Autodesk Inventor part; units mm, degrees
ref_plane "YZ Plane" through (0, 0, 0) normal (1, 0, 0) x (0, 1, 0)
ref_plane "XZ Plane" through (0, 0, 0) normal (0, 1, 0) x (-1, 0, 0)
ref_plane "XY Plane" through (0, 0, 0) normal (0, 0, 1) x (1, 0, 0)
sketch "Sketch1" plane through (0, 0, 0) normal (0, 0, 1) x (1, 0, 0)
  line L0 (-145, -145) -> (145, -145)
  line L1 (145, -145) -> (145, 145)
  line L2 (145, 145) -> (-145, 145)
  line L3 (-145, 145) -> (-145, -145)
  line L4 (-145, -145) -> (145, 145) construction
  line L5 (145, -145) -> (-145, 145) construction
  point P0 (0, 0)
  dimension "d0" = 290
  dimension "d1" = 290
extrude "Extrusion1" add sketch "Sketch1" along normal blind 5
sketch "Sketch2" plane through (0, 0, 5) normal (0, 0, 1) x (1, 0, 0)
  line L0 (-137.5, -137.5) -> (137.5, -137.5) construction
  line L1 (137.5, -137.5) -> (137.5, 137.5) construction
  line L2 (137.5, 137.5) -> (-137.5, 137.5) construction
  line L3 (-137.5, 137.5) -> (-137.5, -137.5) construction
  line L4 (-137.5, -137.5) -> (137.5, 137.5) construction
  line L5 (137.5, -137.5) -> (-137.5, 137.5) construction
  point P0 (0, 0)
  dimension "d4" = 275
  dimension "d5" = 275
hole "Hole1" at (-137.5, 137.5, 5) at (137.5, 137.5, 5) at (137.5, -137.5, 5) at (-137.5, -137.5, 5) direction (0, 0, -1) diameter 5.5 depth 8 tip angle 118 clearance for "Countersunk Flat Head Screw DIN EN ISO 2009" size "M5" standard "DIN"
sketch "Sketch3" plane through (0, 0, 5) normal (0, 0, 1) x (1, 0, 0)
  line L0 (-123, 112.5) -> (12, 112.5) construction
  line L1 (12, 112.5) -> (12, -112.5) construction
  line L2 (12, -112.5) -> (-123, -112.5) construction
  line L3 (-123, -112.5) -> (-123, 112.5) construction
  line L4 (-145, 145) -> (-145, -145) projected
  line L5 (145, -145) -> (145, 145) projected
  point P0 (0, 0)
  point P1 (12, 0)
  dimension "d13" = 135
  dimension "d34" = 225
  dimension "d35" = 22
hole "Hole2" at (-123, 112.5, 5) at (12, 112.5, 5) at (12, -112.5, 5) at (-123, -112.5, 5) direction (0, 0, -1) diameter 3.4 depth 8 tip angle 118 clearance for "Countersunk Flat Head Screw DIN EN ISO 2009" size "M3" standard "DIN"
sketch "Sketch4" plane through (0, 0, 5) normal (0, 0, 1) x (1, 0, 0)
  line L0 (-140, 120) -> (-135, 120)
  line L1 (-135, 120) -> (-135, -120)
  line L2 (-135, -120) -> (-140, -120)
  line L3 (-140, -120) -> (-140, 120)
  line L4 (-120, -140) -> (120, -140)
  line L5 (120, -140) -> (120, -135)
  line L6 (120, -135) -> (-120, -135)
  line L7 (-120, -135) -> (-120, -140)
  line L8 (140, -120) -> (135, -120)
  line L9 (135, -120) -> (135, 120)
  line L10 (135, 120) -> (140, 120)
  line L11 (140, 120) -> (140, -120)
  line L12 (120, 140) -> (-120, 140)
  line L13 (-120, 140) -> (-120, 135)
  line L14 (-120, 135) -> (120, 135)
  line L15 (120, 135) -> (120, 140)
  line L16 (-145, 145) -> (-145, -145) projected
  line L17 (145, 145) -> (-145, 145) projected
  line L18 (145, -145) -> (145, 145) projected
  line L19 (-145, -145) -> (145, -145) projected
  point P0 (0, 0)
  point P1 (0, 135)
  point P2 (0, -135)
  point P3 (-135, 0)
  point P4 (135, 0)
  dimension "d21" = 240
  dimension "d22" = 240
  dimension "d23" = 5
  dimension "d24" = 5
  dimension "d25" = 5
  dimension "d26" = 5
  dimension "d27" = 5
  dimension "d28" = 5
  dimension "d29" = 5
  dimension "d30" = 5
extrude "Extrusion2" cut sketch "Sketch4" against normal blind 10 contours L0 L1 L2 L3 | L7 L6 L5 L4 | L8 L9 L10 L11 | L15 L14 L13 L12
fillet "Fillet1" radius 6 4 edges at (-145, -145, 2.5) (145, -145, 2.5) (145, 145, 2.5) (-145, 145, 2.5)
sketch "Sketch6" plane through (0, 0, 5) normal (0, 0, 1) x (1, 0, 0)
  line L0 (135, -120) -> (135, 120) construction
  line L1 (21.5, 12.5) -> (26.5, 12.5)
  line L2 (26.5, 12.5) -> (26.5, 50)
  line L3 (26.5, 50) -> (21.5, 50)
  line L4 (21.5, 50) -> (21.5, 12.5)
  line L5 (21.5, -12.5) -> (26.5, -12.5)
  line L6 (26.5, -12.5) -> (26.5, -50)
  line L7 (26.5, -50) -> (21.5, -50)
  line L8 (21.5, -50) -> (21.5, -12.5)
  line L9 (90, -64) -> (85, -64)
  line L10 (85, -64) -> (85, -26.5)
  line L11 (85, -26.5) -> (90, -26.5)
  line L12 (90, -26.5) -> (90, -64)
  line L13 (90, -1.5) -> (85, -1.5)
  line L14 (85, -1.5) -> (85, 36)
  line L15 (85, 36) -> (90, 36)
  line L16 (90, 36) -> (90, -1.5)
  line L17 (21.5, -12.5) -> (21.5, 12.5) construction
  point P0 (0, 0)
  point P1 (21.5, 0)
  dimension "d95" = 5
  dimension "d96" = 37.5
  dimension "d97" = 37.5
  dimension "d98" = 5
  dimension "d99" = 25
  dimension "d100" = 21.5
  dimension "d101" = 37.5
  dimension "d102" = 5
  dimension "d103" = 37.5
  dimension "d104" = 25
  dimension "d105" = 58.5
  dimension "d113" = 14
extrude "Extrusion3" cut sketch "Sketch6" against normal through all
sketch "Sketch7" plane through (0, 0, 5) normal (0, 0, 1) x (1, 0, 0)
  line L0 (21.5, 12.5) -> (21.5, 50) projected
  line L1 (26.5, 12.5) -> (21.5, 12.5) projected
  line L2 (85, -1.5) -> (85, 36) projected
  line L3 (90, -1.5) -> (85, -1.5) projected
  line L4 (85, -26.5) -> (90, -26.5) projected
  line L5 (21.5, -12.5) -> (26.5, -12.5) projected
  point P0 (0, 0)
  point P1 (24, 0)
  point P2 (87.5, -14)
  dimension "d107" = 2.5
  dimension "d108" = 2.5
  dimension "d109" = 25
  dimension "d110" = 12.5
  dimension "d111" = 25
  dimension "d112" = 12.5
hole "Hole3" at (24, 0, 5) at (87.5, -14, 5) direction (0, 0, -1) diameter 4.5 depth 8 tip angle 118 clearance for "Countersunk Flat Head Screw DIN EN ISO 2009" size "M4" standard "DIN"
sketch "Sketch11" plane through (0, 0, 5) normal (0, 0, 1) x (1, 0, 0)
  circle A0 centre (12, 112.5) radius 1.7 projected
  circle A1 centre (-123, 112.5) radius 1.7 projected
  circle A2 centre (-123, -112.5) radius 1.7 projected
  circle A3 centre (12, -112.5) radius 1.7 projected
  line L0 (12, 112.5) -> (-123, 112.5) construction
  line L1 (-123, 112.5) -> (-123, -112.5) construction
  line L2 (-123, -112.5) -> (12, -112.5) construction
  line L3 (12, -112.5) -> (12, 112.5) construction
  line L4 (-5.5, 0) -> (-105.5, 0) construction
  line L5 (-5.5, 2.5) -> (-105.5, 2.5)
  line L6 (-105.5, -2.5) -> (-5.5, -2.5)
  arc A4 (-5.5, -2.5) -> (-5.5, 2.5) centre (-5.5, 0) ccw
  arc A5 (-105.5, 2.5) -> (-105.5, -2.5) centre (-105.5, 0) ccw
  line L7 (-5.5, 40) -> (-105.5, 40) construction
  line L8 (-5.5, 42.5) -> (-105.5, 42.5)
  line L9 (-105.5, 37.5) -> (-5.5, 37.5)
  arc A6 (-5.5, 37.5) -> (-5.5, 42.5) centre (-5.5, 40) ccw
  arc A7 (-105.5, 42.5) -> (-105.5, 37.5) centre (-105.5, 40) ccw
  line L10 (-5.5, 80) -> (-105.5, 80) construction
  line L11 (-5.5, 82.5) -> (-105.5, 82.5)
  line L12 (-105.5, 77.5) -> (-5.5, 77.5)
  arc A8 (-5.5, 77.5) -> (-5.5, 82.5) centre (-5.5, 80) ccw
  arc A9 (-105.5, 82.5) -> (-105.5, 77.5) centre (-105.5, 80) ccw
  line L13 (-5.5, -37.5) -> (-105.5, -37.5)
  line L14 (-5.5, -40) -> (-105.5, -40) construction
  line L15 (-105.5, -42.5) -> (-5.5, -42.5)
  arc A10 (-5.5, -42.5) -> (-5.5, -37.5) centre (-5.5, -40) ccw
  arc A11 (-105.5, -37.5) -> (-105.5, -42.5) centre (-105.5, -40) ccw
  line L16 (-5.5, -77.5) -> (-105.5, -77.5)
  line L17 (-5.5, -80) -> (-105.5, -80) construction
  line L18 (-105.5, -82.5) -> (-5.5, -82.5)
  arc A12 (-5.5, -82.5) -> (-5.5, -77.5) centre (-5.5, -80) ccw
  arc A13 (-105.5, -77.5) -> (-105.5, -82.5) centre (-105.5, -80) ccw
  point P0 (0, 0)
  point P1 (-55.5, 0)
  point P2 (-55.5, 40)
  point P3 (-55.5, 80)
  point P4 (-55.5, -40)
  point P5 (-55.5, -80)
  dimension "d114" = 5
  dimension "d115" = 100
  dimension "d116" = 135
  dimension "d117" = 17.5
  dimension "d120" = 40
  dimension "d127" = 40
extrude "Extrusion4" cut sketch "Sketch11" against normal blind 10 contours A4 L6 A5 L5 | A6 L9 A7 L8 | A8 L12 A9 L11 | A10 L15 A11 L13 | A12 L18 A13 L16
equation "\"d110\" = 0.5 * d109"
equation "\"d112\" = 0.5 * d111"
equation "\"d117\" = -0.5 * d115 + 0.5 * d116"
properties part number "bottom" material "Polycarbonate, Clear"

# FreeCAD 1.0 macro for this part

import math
import FreeCAD as App
import Part
import Sketcher
from FreeCAD import Vector
Q = App.Units.Quantity


def edges_at(feature, points):
    """Names of the edges that pass closest to the given points."""
    edges = feature.Shape.Edges
    near = lambda p: min(range(len(edges)), key=lambda i: edges[i].distToShape(Part.Vertex(*p))[0])
    return sorted({f"Edge{near(p) + 1}" for p in points})

doc = App.newDocument("Part")
body = doc.addObject("PartDesign::Body", "Body")

sketch1 = body.newObject("Sketcher::SketchObject", "Sketch")
sketch1.AttachmentSupport = (doc.getObject("XY_Plane"), [""])
sketch1.MapMode = "FlatFace"
sketch1.addGeometry([
    Part.LineSegment(Vector(-145, 145, 0), Vector(-145, -145, 0)),
    Part.LineSegment(Vector(-145, -145, 0), Vector(145, -145, 0)),
    Part.LineSegment(Vector(145, -145, 0), Vector(145, 145, 0)),
    Part.LineSegment(Vector(145, 145, 0), Vector(-145, 145, 0)),
], False)
sketch1.addConstraint([
    Sketcher.Constraint("Coincident", 0, 2, 1, 1),
    Sketcher.Constraint("Coincident", 1, 2, 2, 1),
    Sketcher.Constraint("Coincident", 2, 2, 3, 1),
    Sketcher.Constraint("Coincident", 3, 2, 0, 1),
    Sketcher.Constraint("Vertical", 0),
    Sketcher.Constraint("Horizontal", 1),
    Sketcher.Constraint("Vertical", 2),
    Sketcher.Constraint("Horizontal", 3),
    Sketcher.Constraint("Symmetric", 0, 2, 2, 2, -1, 1),
    Sketcher.Constraint("Equal", 3, 0),
    Sketcher.Constraint("DistanceX", 1, 1, 1, 2, Q("290 mm")),
])
pad1 = body.newObject("PartDesign::Pad", "Pad")
pad1.Profile = sketch1
pad1.Length = 5

sketch2 = body.newObject("Sketcher::SketchObject", "Sketch001")
sketch2.AttachmentSupport = (doc.getObject("XY_Plane"), [""])
sketch2.MapMode = "FlatFace"
sketch2.AttachmentOffset = App.Placement(Vector(0, 0, 5), App.Rotation())
sketch2.addGeometry([
    Part.Circle(Vector(-137.5, 137.5, 0), Vector(0, 0, 1), 2.75),
    Part.Circle(Vector(137.5, 137.5, 0), Vector(0, 0, 1), 2.75),
    Part.Circle(Vector(137.5, -137.5, 0), Vector(0, 0, 1), 2.75),
    Part.Circle(Vector(-137.5, -137.5, 0), Vector(0, 0, 1), 2.75),
], False)
sketch2.addConstraint([
    Sketcher.Constraint("Equal", 0, 1),
    Sketcher.Constraint("Equal", 1, 2),
    Sketcher.Constraint("Equal", 2, 3),
    Sketcher.Constraint("Symmetric", 0, 3, 2, 3, -1, 1),
    Sketcher.Constraint("Symmetric", 1, 3, 3, 3, -1, 1),
    Sketcher.Constraint("Symmetric", 0, 3, 1, 3, -2),
    Sketcher.Constraint("Diameter", 0, Q("5.5 mm")),
    Sketcher.Constraint("DistanceX", 0, 3, 1, 3, Q("275 mm")),
    Sketcher.Constraint("DistanceY", 2, 3, 1, 3, Q("275 mm")),
])
doc.recompute()
hole = body.newObject("PartDesign::Hole", "Hole")
hole.Profile = sketch2
hole.ThreadType = "None"
hole.Diameter = 5.5
hole.DepthType = "Dimension"
hole.Depth = 8
hole.DrillPoint = "Angled"
hole.DrillPointAngle = 118

sketch3 = body.newObject("Sketcher::SketchObject", "Sketch002")
sketch3.AttachmentSupport = (doc.getObject("XY_Plane"), [""])
sketch3.MapMode = "FlatFace"
sketch3.AttachmentOffset = App.Placement(Vector(0, 0, 5), App.Rotation())
sketch3.addGeometry([
    Part.Circle(Vector(-123, 112.5, 0), Vector(0, 0, 1), 1.7),
    Part.Circle(Vector(12, 112.5, 0), Vector(0, 0, 1), 1.7),
    Part.Circle(Vector(12, -112.5, 0), Vector(0, 0, 1), 1.7),
    Part.Circle(Vector(-123, -112.5, 0), Vector(0, 0, 1), 1.7),
], False)
sketch3.addConstraint([
    Sketcher.Constraint("Equal", 0, 1),
    Sketcher.Constraint("Equal", 1, 2),
    Sketcher.Constraint("Equal", 2, 3),
    Sketcher.Constraint("Symmetric", 1, 3, 2, 3, -1),
    Sketcher.Constraint("Symmetric", 0, 3, 3, 3, -1),
    Sketcher.Constraint("Horizontal", 0, 3, 1, 3),
    Sketcher.Constraint("Diameter", 0, Q("3.4 mm")),
    Sketcher.Constraint("DistanceX", 0, 3, -1, 1, Q("123 mm")),
    Sketcher.Constraint("DistanceX", -1, 1, 1, 3, Q("12 mm")),
    Sketcher.Constraint("DistanceY", 2, 3, 1, 3, Q("225 mm")),
])
doc.recompute()
hole2 = body.newObject("PartDesign::Hole", "Hole001")
hole2.Profile = sketch3
hole2.ThreadType = "None"
hole2.Diameter = 3.4
hole2.DepthType = "Dimension"
hole2.Depth = 8
hole2.DrillPoint = "Angled"
hole2.DrillPointAngle = 118

sketch4 = body.newObject("Sketcher::SketchObject", "Sketch003")
sketch4.AttachmentSupport = (doc.getObject("XY_Plane"), [""])
sketch4.MapMode = "FlatFace"
sketch4.AttachmentOffset = App.Placement(Vector(0, 0, 5), App.Rotation())
sketch4.addGeometry([
    Part.LineSegment(Vector(-135, 120, 0), Vector(-140, 120, 0)),
    Part.LineSegment(Vector(-140, 120, 0), Vector(-140, -120, 0)),
    Part.LineSegment(Vector(-140, -120, 0), Vector(-135, -120, 0)),
    Part.LineSegment(Vector(-135, -120, 0), Vector(-135, 120, 0)),
    Part.LineSegment(Vector(-120, -135, 0), Vector(-120, -140, 0)),
    Part.LineSegment(Vector(-120, -140, 0), Vector(120, -140, 0)),
    Part.LineSegment(Vector(120, -140, 0), Vector(120, -135, 0)),
    Part.LineSegment(Vector(120, -135, 0), Vector(-120, -135, 0)),
    Part.LineSegment(Vector(135, -120, 0), Vector(140, -120, 0)),
    Part.LineSegment(Vector(140, -120, 0), Vector(140, 120, 0)),
    Part.LineSegment(Vector(140, 120, 0), Vector(135, 120, 0)),
    Part.LineSegment(Vector(135, 120, 0), Vector(135, -120, 0)),
    Part.LineSegment(Vector(120, 135, 0), Vector(120, 140, 0)),
    Part.LineSegment(Vector(120, 140, 0), Vector(-120, 140, 0)),
    Part.LineSegment(Vector(-120, 140, 0), Vector(-120, 135, 0)),
    Part.LineSegment(Vector(-120, 135, 0), Vector(120, 135, 0)),
], False)
sketch4.addConstraint([
    Sketcher.Constraint("Coincident", 0, 2, 1, 1),
    Sketcher.Constraint("Coincident", 1, 2, 2, 1),
    Sketcher.Constraint("Coincident", 2, 2, 3, 1),
    Sketcher.Constraint("Coincident", 3, 2, 0, 1),
    Sketcher.Constraint("Coincident", 4, 2, 5, 1),
    Sketcher.Constraint("Coincident", 5, 2, 6, 1),
    Sketcher.Constraint("Coincident", 6, 2, 7, 1),
    Sketcher.Constraint("Coincident", 7, 2, 4, 1),
    Sketcher.Constraint("Coincident", 8, 2, 9, 1),
    Sketcher.Constraint("Coincident", 9, 2, 10, 1),
    Sketcher.Constraint("Coincident", 10, 2, 11, 1),
    Sketcher.Constraint("Coincident", 11, 2, 8, 1),
    Sketcher.Constraint("Coincident", 12, 2, 13, 1),
    Sketcher.Constraint("Coincident", 13, 2, 14, 1),
    Sketcher.Constraint("Coincident", 14, 2, 15, 1),
    Sketcher.Constraint("Coincident", 15, 2, 12, 1),
    Sketcher.Constraint("Horizontal", 0),
    Sketcher.Constraint("Vertical", 1),
    Sketcher.Constraint("Horizontal", 2),
    Sketcher.Constraint("Vertical", 3),
    Sketcher.Constraint("Vertical", 4),
    Sketcher.Constraint("Horizontal", 5),
    Sketcher.Constraint("Vertical", 6),
    Sketcher.Constraint("Horizontal", 7),
    Sketcher.Constraint("Horizontal", 8),
    Sketcher.Constraint("Vertical", 9),
    Sketcher.Constraint("Horizontal", 10),
    Sketcher.Constraint("Vertical", 11),
    Sketcher.Constraint("Vertical", 12),
    Sketcher.Constraint("Horizontal", 13),
    Sketcher.Constraint("Vertical", 14),
    Sketcher.Constraint("Horizontal", 15),
    Sketcher.Constraint("Symmetric", 0, 2, 8, 2, -1, 1),
    Sketcher.Constraint("Symmetric", 2, 2, 10, 2, -1, 1),
    Sketcher.Constraint("Symmetric", 4, 2, 12, 2, -1, 1),
    Sketcher.Constraint("Symmetric", 6, 2, 14, 2, -1, 1),
    Sketcher.Constraint("Horizontal", 2, 2, 8, 2),
    Sketcher.Constraint("Vertical", 6, 2, 12, 2),
    Sketcher.Constraint("Equal", 15, 1),
    Sketcher.Constraint("Equal", 10, 4),
    Sketcher.Constraint("DistanceX", 0, 2, 0, 1, Q("5 mm")),
    Sketcher.Constraint("DistanceX", 5, 1, 5, 2, Q("240 mm")),
    Sketcher.Constraint("DistanceX", 0, 2, -1, 1, Q("140 mm")),
    Sketcher.Constraint("DistanceY", 4, 2, -1, 1, Q("140 mm")),
])
pocket1 = body.newObject("PartDesign::Pocket", "Pocket")
pocket1.Profile = sketch4
pocket1.Length = 10
doc.recompute()

fillet = body.newObject("PartDesign::Fillet", "Fillet")
fillet.Base = (pocket1, edges_at(pocket1, [
    (-145, -145, 2.5),
    (145, -145, 2.5),
    (145, 145, 2.5),
    (-145, 145, 2.5),
]))
fillet.Radius = 6

sketch5 = body.newObject("Sketcher::SketchObject", "Sketch004")
sketch5.AttachmentSupport = (doc.getObject("XY_Plane"), [""])
sketch5.MapMode = "FlatFace"
sketch5.AttachmentOffset = App.Placement(Vector(0, 0, 5), App.Rotation())
sketch5.addGeometry([
    Part.LineSegment(Vector(21.5, 50, 0), Vector(21.5, 12.5, 0)),
    Part.LineSegment(Vector(21.5, 12.5, 0), Vector(26.5, 12.5, 0)),
    Part.LineSegment(Vector(26.5, 12.5, 0), Vector(26.5, 50, 0)),
    Part.LineSegment(Vector(26.5, 50, 0), Vector(21.5, 50, 0)),
    Part.LineSegment(Vector(26.5, -12.5, 0), Vector(21.5, -12.5, 0)),
    Part.LineSegment(Vector(21.5, -12.5, 0), Vector(21.5, -50, 0)),
    Part.LineSegment(Vector(21.5, -50, 0), Vector(26.5, -50, 0)),
    Part.LineSegment(Vector(26.5, -50, 0), Vector(26.5, -12.5, 0)),
    Part.LineSegment(Vector(85, -64, 0), Vector(90, -64, 0)),
    Part.LineSegment(Vector(90, -64, 0), Vector(90, -26.5, 0)),
    Part.LineSegment(Vector(90, -26.5, 0), Vector(85, -26.5, 0)),
    Part.LineSegment(Vector(85, -26.5, 0), Vector(85, -64, 0)),
    Part.LineSegment(Vector(85, -1.5, 0), Vector(90, -1.5, 0)),
    Part.LineSegment(Vector(90, -1.5, 0), Vector(90, 36, 0)),
    Part.LineSegment(Vector(90, 36, 0), Vector(85, 36, 0)),
    Part.LineSegment(Vector(85, 36, 0), Vector(85, -1.5, 0)),
], False)
sketch5.addConstraint([
    Sketcher.Constraint("Coincident", 0, 2, 1, 1),
    Sketcher.Constraint("Coincident", 1, 2, 2, 1),
    Sketcher.Constraint("Coincident", 2, 2, 3, 1),
    Sketcher.Constraint("Coincident", 3, 2, 0, 1),
    Sketcher.Constraint("Coincident", 4, 2, 5, 1),
    Sketcher.Constraint("Coincident", 5, 2, 6, 1),
    Sketcher.Constraint("Coincident", 6, 2, 7, 1),
    Sketcher.Constraint("Coincident", 7, 2, 4, 1),
    Sketcher.Constraint("Coincident", 8, 2, 9, 1),
    Sketcher.Constraint("Coincident", 9, 2, 10, 1),
    Sketcher.Constraint("Coincident", 10, 2, 11, 1),
    Sketcher.Constraint("Coincident", 11, 2, 8, 1),
    Sketcher.Constraint("Coincident", 12, 2, 13, 1),
    Sketcher.Constraint("Coincident", 13, 2, 14, 1),
    Sketcher.Constraint("Coincident", 14, 2, 15, 1),
    Sketcher.Constraint("Coincident", 15, 2, 12, 1),
    Sketcher.Constraint("Vertical", 0),
    Sketcher.Constraint("Horizontal", 1),
    Sketcher.Constraint("Vertical", 2),
    Sketcher.Constraint("Horizontal", 3),
    Sketcher.Constraint("Horizontal", 4),
    Sketcher.Constraint("Vertical", 5),
    Sketcher.Constraint("Horizontal", 6),
    Sketcher.Constraint("Vertical", 7),
    Sketcher.Constraint("Horizontal", 8),
    Sketcher.Constraint("Vertical", 9),
    Sketcher.Constraint("Horizontal", 10),
    Sketcher.Constraint("Vertical", 11),
    Sketcher.Constraint("Horizontal", 12),
    Sketcher.Constraint("Vertical", 13),
    Sketcher.Constraint("Horizontal", 14),
    Sketcher.Constraint("Vertical", 15),
    Sketcher.Constraint("Symmetric", 0, 2, 4, 2, -1),
    Sketcher.Constraint("Symmetric", 2, 2, 6, 2, -1),
    Sketcher.Constraint("Vertical", 9, 2, 12, 2),
    Sketcher.Constraint("Vertical", 11, 2, 14, 2),
    Sketcher.Constraint("Equal", 6, 8),
    Sketcher.Constraint("Equal", 7, 9),
    Sketcher.Constraint("Equal", 11, 13),
    Sketcher.Constraint("DistanceX", 1, 1, 1, 2, Q("5 mm")),
    Sketcher.Constraint("DistanceY", 0, 2, 0, 1, Q("37.5 mm")),
    Sketcher.Constraint("DistanceY", 4, 2, 0, 2, Q("25 mm")),
    Sketcher.Constraint("DistanceY", 8, 2, 6, 2, Q("14 mm")),
    Sketcher.Constraint("DistanceY", 9, 2, 12, 2, Q("25 mm")),
    Sketcher.Constraint("DistanceX", -1, 1, 0, 2, Q("21.5 mm")),
    Sketcher.Constraint("DistanceX", 7, 2, 10, 2, Q("58.5 mm")),
])
pocket2 = body.newObject("PartDesign::Pocket", "Pocket001")
pocket2.Profile = sketch5
pocket2.Type = "ThroughAll"

sketch6 = body.newObject("Sketcher::SketchObject", "Sketch005")
sketch6.AttachmentSupport = (doc.getObject("XY_Plane"), [""])
sketch6.MapMode = "FlatFace"
sketch6.AttachmentOffset = App.Placement(Vector(0, 0, 5), App.Rotation())
sketch6.addGeometry([
    Part.Circle(Vector(24, 0, 0), Vector(0, 0, 1), 2.25),
    Part.Circle(Vector(87.5, -14, 0), Vector(0, 0, 1), 2.25),
], False)
sketch6.addConstraint([
    Sketcher.Constraint("Equal", 0, 1),
    Sketcher.Constraint("PointOnObject", 0, 3, -1),
    Sketcher.Constraint("Diameter", 0, Q("4.5 mm")),
    Sketcher.Constraint("DistanceX", -1, 1, 0, 3, Q("24 mm")),
    Sketcher.Constraint("DistanceY", 1, 3, -1, 1, Q("14 mm")),
    Sketcher.Constraint("DistanceX", -1, 1, 1, 3, Q("87.5 mm")),
])
doc.recompute()
hole3 = body.newObject("PartDesign::Hole", "Hole002")
hole3.Profile = sketch6
hole3.ThreadType = "None"
hole3.Diameter = 4.5
hole3.DepthType = "Dimension"
hole3.Depth = 8
hole3.DrillPoint = "Angled"
hole3.DrillPointAngle = 118

sketch7 = body.newObject("Sketcher::SketchObject", "Sketch006")
sketch7.AttachmentSupport = (doc.getObject("XY_Plane"), [""])
sketch7.MapMode = "FlatFace"
sketch7.AttachmentOffset = App.Placement(Vector(0, 0, 5), App.Rotation())
sketch7.addGeometry([
    Part.ArcOfCircle(Part.Circle(Vector(-5.5, 0, 0), Vector(0, 0, 1), 2.5), math.radians(-90), math.radians(90)),
    Part.LineSegment(Vector(-5.5, 2.5, 0), Vector(-105.5, 2.5, 0)),
    Part.ArcOfCircle(Part.Circle(Vector(-105.5, 0, 0), Vector(0, 0, 1), 2.5), math.radians(90), math.radians(270)),
    Part.LineSegment(Vector(-105.5, -2.5, 0), Vector(-5.5, -2.5, 0)),
    Part.ArcOfCircle(Part.Circle(Vector(-5.5, 40, 0), Vector(0, 0, 1), 2.5), math.radians(-90), math.radians(90)),
    Part.LineSegment(Vector(-5.5, 42.5, 0), Vector(-105.5, 42.5, 0)),
    Part.ArcOfCircle(Part.Circle(Vector(-105.5, 40, 0), Vector(0, 0, 1), 2.5), math.radians(90), math.radians(270)),
    Part.LineSegment(Vector(-105.5, 37.5, 0), Vector(-5.5, 37.5, 0)),
    Part.ArcOfCircle(Part.Circle(Vector(-5.5, 80, 0), Vector(0, 0, 1), 2.5), math.radians(-90), math.radians(90)),
    Part.LineSegment(Vector(-5.5, 82.5, 0), Vector(-105.5, 82.5, 0)),
    Part.ArcOfCircle(Part.Circle(Vector(-105.5, 80, 0), Vector(0, 0, 1), 2.5), math.radians(90), math.radians(270)),
    Part.LineSegment(Vector(-105.5, 77.5, 0), Vector(-5.5, 77.5, 0)),
    Part.ArcOfCircle(Part.Circle(Vector(-5.5, -40, 0), Vector(0, 0, 1), 2.5), math.radians(-90), math.radians(90)),
    Part.LineSegment(Vector(-5.5, -37.5, 0), Vector(-105.5, -37.5, 0)),
    Part.ArcOfCircle(Part.Circle(Vector(-105.5, -40, 0), Vector(0, 0, 1), 2.5), math.radians(90), math.radians(270)),
    Part.LineSegment(Vector(-105.5, -42.5, 0), Vector(-5.5, -42.5, 0)),
    Part.ArcOfCircle(Part.Circle(Vector(-5.5, -80, 0), Vector(0, 0, 1), 2.5), math.radians(-90), math.radians(90)),
    Part.LineSegment(Vector(-5.5, -77.5, 0), Vector(-105.5, -77.5, 0)),
    Part.ArcOfCircle(Part.Circle(Vector(-105.5, -80, 0), Vector(0, 0, 1), 2.5), math.radians(90), math.radians(270)),
    Part.LineSegment(Vector(-105.5, -82.5, 0), Vector(-5.5, -82.5, 0)),
], False)
sketch7.addConstraint([
    Sketcher.Constraint("Tangent", 0, 2, 1, 1),
    Sketcher.Constraint("Tangent", 1, 2, 2, 1),
    Sketcher.Constraint("Tangent", 2, 2, 3, 1),
    Sketcher.Constraint("Tangent", 3, 2, 0, 1),
    Sketcher.Constraint("Tangent", 4, 2, 5, 1),
    Sketcher.Constraint("Tangent", 5, 2, 6, 1),
    Sketcher.Constraint("Tangent", 6, 2, 7, 1),
    Sketcher.Constraint("Tangent", 7, 2, 4, 1),
    Sketcher.Constraint("Tangent", 8, 2, 9, 1),
    Sketcher.Constraint("Tangent", 9, 2, 10, 1),
    Sketcher.Constraint("Tangent", 10, 2, 11, 1),
    Sketcher.Constraint("Tangent", 11, 2, 8, 1),
    Sketcher.Constraint("Tangent", 12, 2, 13, 1),
    Sketcher.Constraint("Tangent", 13, 2, 14, 1),
    Sketcher.Constraint("Tangent", 14, 2, 15, 1),
    Sketcher.Constraint("Tangent", 15, 2, 12, 1),
    Sketcher.Constraint("Tangent", 16, 2, 17, 1),
    Sketcher.Constraint("Tangent", 17, 2, 18, 1),
    Sketcher.Constraint("Tangent", 18, 2, 19, 1),
    Sketcher.Constraint("Tangent", 19, 2, 16, 1),
    Sketcher.Constraint("Horizontal", 1),
    Sketcher.Constraint("Horizontal", 3),
    Sketcher.Constraint("Horizontal", 5),
    Sketcher.Constraint("Horizontal", 7),
    Sketcher.Constraint("Horizontal", 9),
    Sketcher.Constraint("Horizontal", 11),
    Sketcher.Constraint("Horizontal", 13),
    Sketcher.Constraint("Horizontal", 15),
    Sketcher.Constraint("Horizontal", 17),
    Sketcher.Constraint("Horizontal", 19),
    Sketcher.Constraint("Equal", 2, 4),
    Sketcher.Constraint("Equal", 6, 8),
    Sketcher.Constraint("Equal", 10, 12),
    Sketcher.Constraint("Equal", 14, 16),
    Sketcher.Constraint("Symmetric", 4, 3, 12, 3, -1),
    Sketcher.Constraint("Symmetric", 8, 3, 16, 3, -1),
    Sketcher.Constraint("PointOnObject", 0, 3, -1),
    Sketcher.Constraint("Vertical", 0, 3, 4, 3),
    Sketcher.Constraint("Vertical", 2, 3, 6, 3),
    Sketcher.Constraint("Vertical", 4, 3, 8, 3),
    Sketcher.Constraint("Vertical", 6, 3, 10, 3),
    Sketcher.Constraint("Vertical", 10, 3, 14, 3),
    Sketcher.Constraint("Vertical", 14, 3, 18, 3),
    Sketcher.Constraint("Radius", 0, Q("2.5 mm")),
    Sketcher.Constraint("DistanceX", 1, 2, 1, 1, Q("100 mm")),
    Sketcher.Constraint("DistanceY", -1, 1, 4, 3, Q("40 mm")),
    Sketcher.Constraint("DistanceY", 4, 3, 8, 3, Q("40 mm")),
    Sketcher.Constraint("DistanceX", 0, 3, -1, 1, Q("5.5 mm")),
])
pocket3 = body.newObject("PartDesign::Pocket", "Pocket002")
pocket3.Profile = sketch7
pocket3.Length = 10

doc.recompute()
